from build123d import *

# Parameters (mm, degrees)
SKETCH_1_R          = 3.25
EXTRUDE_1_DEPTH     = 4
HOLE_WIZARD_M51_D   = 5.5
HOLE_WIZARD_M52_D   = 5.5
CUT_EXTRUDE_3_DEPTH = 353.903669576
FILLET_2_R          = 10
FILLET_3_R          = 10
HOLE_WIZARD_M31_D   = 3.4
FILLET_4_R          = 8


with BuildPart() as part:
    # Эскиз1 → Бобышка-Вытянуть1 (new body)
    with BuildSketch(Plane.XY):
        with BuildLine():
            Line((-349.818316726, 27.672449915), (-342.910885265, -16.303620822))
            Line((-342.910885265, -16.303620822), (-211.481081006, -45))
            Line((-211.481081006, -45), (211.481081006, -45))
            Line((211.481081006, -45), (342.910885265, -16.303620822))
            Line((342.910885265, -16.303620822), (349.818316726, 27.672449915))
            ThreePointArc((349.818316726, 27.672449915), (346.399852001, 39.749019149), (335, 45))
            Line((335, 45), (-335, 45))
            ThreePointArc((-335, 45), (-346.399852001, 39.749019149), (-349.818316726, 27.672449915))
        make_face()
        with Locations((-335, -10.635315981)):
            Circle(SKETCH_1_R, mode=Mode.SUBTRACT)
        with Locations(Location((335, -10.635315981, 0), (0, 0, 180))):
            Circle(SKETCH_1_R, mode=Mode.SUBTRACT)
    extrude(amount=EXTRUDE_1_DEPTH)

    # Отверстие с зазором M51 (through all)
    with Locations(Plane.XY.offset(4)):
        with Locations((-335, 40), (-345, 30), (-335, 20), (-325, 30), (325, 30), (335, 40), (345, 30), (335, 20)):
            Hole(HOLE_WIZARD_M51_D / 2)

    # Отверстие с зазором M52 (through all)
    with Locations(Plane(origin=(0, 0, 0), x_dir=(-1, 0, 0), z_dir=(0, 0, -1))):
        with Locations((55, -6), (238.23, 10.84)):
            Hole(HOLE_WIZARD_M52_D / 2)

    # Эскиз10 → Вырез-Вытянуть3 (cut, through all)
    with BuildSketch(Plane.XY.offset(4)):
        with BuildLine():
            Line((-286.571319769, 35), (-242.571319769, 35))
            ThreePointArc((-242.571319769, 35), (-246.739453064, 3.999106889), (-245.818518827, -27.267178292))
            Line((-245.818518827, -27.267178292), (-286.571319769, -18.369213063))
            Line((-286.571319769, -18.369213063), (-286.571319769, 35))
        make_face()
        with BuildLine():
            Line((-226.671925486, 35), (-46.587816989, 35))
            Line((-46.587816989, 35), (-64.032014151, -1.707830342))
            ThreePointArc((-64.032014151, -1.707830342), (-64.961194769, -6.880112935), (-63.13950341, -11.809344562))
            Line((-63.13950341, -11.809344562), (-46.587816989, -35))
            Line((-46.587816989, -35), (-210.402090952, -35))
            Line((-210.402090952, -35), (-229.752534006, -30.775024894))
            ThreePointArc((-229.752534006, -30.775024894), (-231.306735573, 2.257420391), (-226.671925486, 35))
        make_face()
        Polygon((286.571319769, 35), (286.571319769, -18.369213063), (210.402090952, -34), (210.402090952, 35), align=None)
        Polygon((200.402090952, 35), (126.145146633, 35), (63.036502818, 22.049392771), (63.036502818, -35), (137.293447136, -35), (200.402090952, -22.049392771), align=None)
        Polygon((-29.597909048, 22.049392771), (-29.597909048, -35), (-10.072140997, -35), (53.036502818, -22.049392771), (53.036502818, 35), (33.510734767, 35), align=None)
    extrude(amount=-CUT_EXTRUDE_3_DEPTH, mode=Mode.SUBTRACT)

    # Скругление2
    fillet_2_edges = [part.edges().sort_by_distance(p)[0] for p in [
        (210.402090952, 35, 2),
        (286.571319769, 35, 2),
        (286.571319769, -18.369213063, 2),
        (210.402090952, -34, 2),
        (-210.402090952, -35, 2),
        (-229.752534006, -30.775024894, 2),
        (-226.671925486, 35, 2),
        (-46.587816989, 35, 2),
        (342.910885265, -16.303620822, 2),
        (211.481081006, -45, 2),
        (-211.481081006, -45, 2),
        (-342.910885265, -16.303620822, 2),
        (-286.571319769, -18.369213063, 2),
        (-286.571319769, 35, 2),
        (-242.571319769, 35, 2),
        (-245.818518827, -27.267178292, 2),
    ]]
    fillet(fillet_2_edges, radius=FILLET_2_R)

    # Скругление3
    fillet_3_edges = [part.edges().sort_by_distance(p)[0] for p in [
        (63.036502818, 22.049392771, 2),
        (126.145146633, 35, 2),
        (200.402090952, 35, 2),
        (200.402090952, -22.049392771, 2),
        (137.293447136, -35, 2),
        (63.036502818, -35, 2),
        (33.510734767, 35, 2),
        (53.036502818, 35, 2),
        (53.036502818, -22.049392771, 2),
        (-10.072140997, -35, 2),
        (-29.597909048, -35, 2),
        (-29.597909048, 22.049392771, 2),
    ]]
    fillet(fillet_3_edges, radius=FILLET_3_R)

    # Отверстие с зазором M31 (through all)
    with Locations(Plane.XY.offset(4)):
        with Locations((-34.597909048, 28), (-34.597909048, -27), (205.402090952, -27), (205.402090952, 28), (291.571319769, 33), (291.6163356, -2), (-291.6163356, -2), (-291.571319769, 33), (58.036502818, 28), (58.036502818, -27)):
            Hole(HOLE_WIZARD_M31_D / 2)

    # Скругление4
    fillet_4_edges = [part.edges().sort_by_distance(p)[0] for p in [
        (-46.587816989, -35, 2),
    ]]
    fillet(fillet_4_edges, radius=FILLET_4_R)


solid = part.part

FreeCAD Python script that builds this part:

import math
import FreeCAD as App
import Part
import Sketcher


def edges_at(feature, points):
    """Names of the edges that pass closest to the given points."""
    edges = feature.Shape.Edges
    near = lambda p: min(range(len(edges)), key=lambda i: edges[i].distToShape(Part.Vertex(*p))[0])
    return sorted({f"Edge{near(p) + 1}" for p in points})


def add_polygon(sketch, points):
    """Adds a closed chain of lines whose ends are joined by coincident constraints."""
    first, n = sketch.GeometryCount, len(points)
    for a, b in zip(points, points[1:] + points[:1]):
        sketch.addGeometry(Part.LineSegment(App.Vector(*a, 0), App.Vector(*b, 0)), False)
    for i in range(n):
        sketch.addConstraint(Sketcher.Constraint("Coincident", first + i, 2, first + (i + 1) % n, 1))

doc = App.newDocument("Part")
body = doc.addObject("PartDesign::Body", "Body")

# Sketch on XY plane
sketch1 = body.newObject("Sketcher::SketchObject", "Sketch")
sketch1.AttachmentSupport = (doc.getObject("XY_Plane"), [""])
sketch1.MapMode = "FlatFace"
sketch1.addGeometry([
    Part.LineSegment(App.Vector(-349.8, 27.7, 0), App.Vector(-342.9, -16.3, 0)),  # 0
    Part.LineSegment(App.Vector(-342.9, -16.3, 0), App.Vector(-211.5, -45, 0)),  # 1
    Part.LineSegment(App.Vector(-211.5, -45, 0), App.Vector(211.5, -45, 0)),  # 2
    Part.LineSegment(App.Vector(211.5, -45, 0), App.Vector(342.9, -16.3, 0)),  # 3
    Part.LineSegment(App.Vector(342.9, -16.3, 0), App.Vector(349.8, 27.7, 0)),  # 4
    Part.ArcOfCircle(Part.Circle(App.Vector(335, 30, 0), App.Vector(0, 0, 1), 15), math.radians(-9), math.radians(90)),  # 5
    Part.LineSegment(App.Vector(335, 45, 0), App.Vector(-335, 45, 0)),  # 6
    Part.ArcOfCircle(Part.Circle(App.Vector(-335, 30, 0), App.Vector(0, 0, 1), 15), math.radians(90), math.radians(189)),  # 7
    Part.Circle(App.Vector(-335, -10.6, 0), App.Vector(0, 0, 1), 3.2),  # 8
    Part.Circle(App.Vector(335, -10.6, 0), App.Vector(0, 0, 1), 3.2),  # 9
], False)
sketch1.addConstraint([
    Sketcher.Constraint("Coincident", 0, 2, 1, 1),
    Sketcher.Constraint("Coincident", 1, 2, 2, 1),
    Sketcher.Constraint("Coincident", 2, 2, 3, 1),
    Sketcher.Constraint("Coincident", 3, 2, 4, 1),
    Sketcher.Constraint("Tangent", 4, 2, 5, 1),
    Sketcher.Constraint("Tangent", 5, 2, 6, 1),
    Sketcher.Constraint("Tangent", 6, 2, 7, 1),
    Sketcher.Constraint("Tangent", 7, 2, 0, 1),
    Sketcher.Constraint("Horizontal", 2),
    Sketcher.Constraint("Horizontal", 6),
    Sketcher.Constraint("Equal", 5, 7),
    Sketcher.Constraint("Equal", 8, 9),
    Sketcher.Constraint("Symmetric", 8, 3, 9, 3, -2),
    Sketcher.Constraint("Symmetric", 0, 2, 3, 2, -2),
    Sketcher.Constraint("Horizontal", 4, 2, 7, 2),
    Sketcher.Constraint("Vertical", 7, 3, 8, 3),
    Sketcher.Constraint("Equal", 1, 3),
    Sketcher.Constraint("Radius", 5, 15.0),
    Sketcher.Constraint("Diameter", 8, 6.5),
    Sketcher.Constraint("DistanceX", 6, 2, 6, 1, 670.0),
    Sketcher.Constraint("DistanceY", -1, 1, 5, 3, 30.0),
    Sketcher.Constraint("DistanceY", 1, 2, -1, 1, 45.0),
    Sketcher.Constraint("Distance", 0, 44.515249),
    Sketcher.Constraint("DistanceX", 2, 1, 2, 2, 422.962162),
    Sketcher.Constraint("DistanceY", 0, 2, -1, 1, 16.303621),
    Sketcher.Constraint("DistanceY", 8, 3, -1, 1, 10.635316),
])
pad1 = body.newObject("PartDesign::Pad", "Pad")
pad1.Profile = sketch1
pad1.Length = 4

# Sketch on XY plane
sketch2 = body.newObject("Sketcher::SketchObject", "Sketch001")
sketch2.AttachmentSupport = (doc.getObject("XY_Plane"), [""])
sketch2.MapMode = "FlatFace"
sketch2.AttachmentOffset = App.Placement(App.Vector(0, 0, 4), App.Rotation())
sketch2.addGeometry([
    Part.Circle(App.Vector(-335, 40, 0), App.Vector(0, 0, 1), 2.8),  # 0
    Part.Circle(App.Vector(-345, 30, 0), App.Vector(0, 0, 1), 2.8),  # 1
    Part.Circle(App.Vector(-335, 20, 0), App.Vector(0, 0, 1), 2.8),  # 2
    Part.Circle(App.Vector(-325, 30, 0), App.Vector(0, 0, 1), 2.8),  # 3
    Part.Circle(App.Vector(325, 30, 0), App.Vector(0, 0, 1), 2.8),  # 4
    Part.Circle(App.Vector(335, 40, 0), App.Vector(0, 0, 1), 2.8),  # 5
    Part.Circle(App.Vector(345, 30, 0), App.Vector(0, 0, 1), 2.8),  # 6
    Part.Circle(App.Vector(335, 20, 0), App.Vector(0, 0, 1), 2.8),  # 7
], False)
sketch2.addConstraint([
    Sketcher.Constraint("Equal", 0, 1),
    Sketcher.Constraint("Equal", 1, 2),
    Sketcher.Constraint("Equal", 2, 3),
    Sketcher.Constraint("Equal", 3, 4),
    Sketcher.Constraint("Equal", 4, 5),
    Sketcher.Constraint("Equal", 5, 6),
    Sketcher.Constraint("Equal", 6, 7),
    Sketcher.Constraint("Symmetric", 3, 3, 4, 3, -2),
    Sketcher.Constraint("Symmetric", 0, 3, 5, 3, -2),
    Sketcher.Constraint("Symmetric", 1, 3, 6, 3, -2),
    Sketcher.Constraint("Symmetric", 2, 3, 7, 3, -2),
    Sketcher.Constraint("Horizontal", 1, 3, 3, 3),
    Sketcher.Constraint("Vertical", 0, 3, 2, 3),
    Sketcher.Constraint("Diameter", 0, 5.5),
    Sketcher.Constraint("DistanceX", 0, 3, -1, 1, 335.0),
    Sketcher.Constraint("DistanceY", -1, 1, 0, 3, 40.0),
    Sketcher.Constraint("DistanceX", 1, 3, -1, 1, 345.0),
    Sketcher.Constraint("DistanceY", -1, 1, 1, 3, 30.0),
    Sketcher.Constraint("DistanceY", -1, 1, 2, 3, 20.0),
    Sketcher.Constraint("DistanceX", 3, 3, -1, 1, 325.0),
])
doc.recompute()
hole = body.newObject("PartDesign::Hole", "Hole")
hole.Profile = sketch2
hole.ThreadType = "None"
hole.Diameter = 5.5
hole.DepthType = "ThroughAll"

# Sketch on XY plane
sketch3 = body.newObject("Sketcher::SketchObject", "Sketch002")
sketch3.AttachmentSupport = (doc.getObject("XY_Plane"), [""])
sketch3.MapMode = "FlatFace"
sketch3.addGeometry([
    Part.Circle(App.Vector(-55, -6, 0), App.Vector(0, 0, 1), 2.8),
    Part.Circle(App.Vector(-238.2, 10.8, 0), App.Vector(0, 0, 1), 2.8),
], False)
sketch3.addConstraint([
    Sketcher.Constraint("Equal", 0, 1),
    Sketcher.Constraint("Diameter", 0, 5.5),
    Sketcher.Constraint("DistanceX", 0, 3, -1, 1, 55.0),
    Sketcher.Constraint("DistanceY", 0, 3, -1, 1, 6.0),
    Sketcher.Constraint("DistanceX", 1, 3, -1, 1, 238.23),
    Sketcher.Constraint("DistanceY", -1, 1, 1, 3, 10.84),
])
doc.recompute()
hole2 = body.newObject("PartDesign::Hole", "Hole001")
hole2.Profile = sketch3
hole2.ThreadType = "None"
hole2.Diameter = 5.5
hole2.DepthType = "ThroughAll"
hole2.Reversed = True

# Sketch on XY plane
sketch4 = body.newObject("Sketcher::SketchObject", "Sketch003")
sketch4.AttachmentSupport = (doc.getObject("XY_Plane"), [""])
sketch4.MapMode = "FlatFace"
sketch4.AttachmentOffset = App.Placement(App.Vector(0, 0, 4), App.Rotation())
sketch4.addGeometry(Part.LineSegment(App.Vector(-243, 35, 0), App.Vector(-287, 35, 0)), False)  # 0
sketch4.addGeometry(Part.LineSegment(App.Vector(-287, 35, 0), App.Vector(-287, -18, 0)), False)  # 1
sketch4.addGeometry(Part.LineSegment(App.Vector(-287, -18, 0), App.Vector(-246, -27, 0)), False)  # 2
sketch4.addGeometry(Part.ArcOfCircle(Part.Circle(App.Vector(-55, -6, 0), App.Vector(0, 0, 1), 192), math.radians(167.67), math.radians(186.36)), False)  # 3
sketch4.addGeometry(Part.LineSegment(App.Vector(-47, 35, 0), App.Vector(-227, 35, 0)), False)  # 4
sketch4.addGeometry(Part.ArcOfCircle(Part.Circle(App.Vector(-55, -6, 0), App.Vector(0, 0, 1), 177), math.radians(167), math.radians(188)), False)  # 5
sketch4.addGeometry(Part.LineSegment(App.Vector(-230, -31, 0), App.Vector(-210, -35, 0)), False)  # 6
sketch4.addGeometry(Part.LineSegment(App.Vector(-210, -35, 0), App.Vector(-47, -35, 0)), False)  # 7
sketch4.addGeometry(Part.LineSegment(App.Vector(-47, -35, 0), App.Vector(-63, -12, 0)), False)  # 8
sketch4.addGeometry(Part.ArcOfCircle(Part.Circle(App.Vector(-55, -6, 0), App.Vector(0, 0, 1), 10), math.radians(155), math.radians(216)), False)  # 9
sketch4.addGeometry(Part.LineSegment(App.Vector(-64, -2, 0), App.Vector(-47, 35, 0)), False)  # 10
add_polygon(sketch4, [(287, -18), (287, 35), (210, 35), (210, -34)])  # lines 11-14
add_polygon(sketch4, [(200, 35), (126, 35), (63, 22), (63, -35), (137, -35), (200, -22)])  # lines 15-20
add_polygon(sketch4, [(-30, 22), (-30, -35), (-10, -35), (53, -22), (53, 35), (34, 35)])  # lines 21-26
sketch4.addConstraint([
    Sketcher.Constraint("Coincident", 0, 2, 1, 1),
    Sketcher.Constraint("Coincident", 1, 2, 2, 1),
    Sketcher.Constraint("Coincident", 2, 2, 3, 2),
    Sketcher.Constraint("Coincident", 3, 1, 0, 1),
    Sketcher.Constraint("Coincident", 4, 2, 5, 1),
    Sketcher.Constraint("Coincident", 5, 2, 6, 1),
    Sketcher.Constraint("Coincident", 6, 2, 7, 1),
    Sketcher.Constraint("Coincident", 7, 2, 8, 1),
    Sketcher.Constraint("Tangent", 8, 2, 9, 2),
    Sketcher.Constraint("Tangent", 9, 1, 10, 1),
    Sketcher.Constraint("Coincident", 10, 2, 4, 1),
    Sketcher.Constraint("Horizontal", 0),
    Sketcher.Constraint("Vertical", 1),
    Sketcher.Constraint("Horizontal", 4),
    Sketcher.Constraint("Horizontal", 7),
    Sketcher.Constraint("Vertical", 11),
    Sketcher.Constraint("Horizontal", 12),
    Sketcher.Constraint("Vertical", 13),
    Sketcher.Constraint("Horizontal", 15),
    Sketcher.Constraint("Vertical", 17),
    Sketcher.Constraint("Horizontal", 18),
    Sketcher.Constraint("Vertical", 20),
    Sketcher.Constraint("Vertical", 21),
    Sketcher.Constraint("Horizontal", 22),
    Sketcher.Constraint("Vertical", 24),
    Sketcher.Constraint("Horizontal", 25),
    Sketcher.Constraint("Coincident", 5, 3, 3, 3),
    Sketcher.Constraint("Coincident", 9, 3, 3, 3),
    Sketcher.Constraint("Symmetric", 6, 2, 12, 2, -1, 1),
    Sketcher.Constraint("Symmetric", 0, 2, 11, 2, -2),
    Sketcher.Constraint("Symmetric", 7, 2, 10, 2, -1),
    Sketcher.Constraint("Parallel", 2, 6),
    Sketcher.Constraint("Parallel", 14, 16),
    Sketcher.Constraint("Parallel", 16, 19),
    Sketcher.Constraint("Parallel", 19, 23),
    Sketcher.Constraint("Parallel", 23, 26),
    Sketcher.Constraint("Horizontal", 1, 2, 14, 2),
    Sketcher.Constraint("Horizontal", 12, 2, 15, 2),
    Sketcher.Constraint("Horizontal", 7, 2, 17, 2),
    Sketcher.Constraint("Horizontal", 18, 2, 21, 2),
    Sketcher.Constraint("Horizontal", 19, 2, 23, 2),
    Sketcher.Constraint("Horizontal", 20, 2, 24, 2),
    Sketcher.Constraint("Horizontal", 16, 2, 26, 2),
    Sketcher.Constraint("Equal", 15, 18),
    Sketcher.Constraint("Radius", 3, 192.0),
    Sketcher.Constraint("Radius", 9, 10.0),
    Sketcher.Constraint("Radius", 5, 176.5),
    Sketcher.Constraint("DistanceX", 0, 2, 0, 1, 44.0),
    Sketcher.Constraint("DistanceY", 13, 2, 13, 1, 69.0),
    Sketcher.Constraint("DistanceX", 3, 3, -1, 1, 55.0),
    Sketcher.Constraint("DistanceY", 3, 3, -1, 1, 6.0),
    Sketcher.Constraint("DistanceY", -1, 1, 0, 2, 35.0),
    Sketcher.Constraint("DistanceX", 19, 2, 13, 2, 10.0),
    Sketcher.Constraint("DistanceX", 23, 2, 17, 2, 10.0),
    Sketcher.Constraint("DistanceX", 4, 2, 4, 1, 180.084108),
    Sketcher.Constraint("DistanceX", 12, 2, 12, 1, 76.169229),
    Sketcher.Constraint("DistanceX", 22, 1, 22, 2, 19.525768),
    Sketcher.Constraint("DistanceX", 1, 2, 2, 2, 40.752801),
    Sketcher.Constraint("DistanceX", 15, 2, 18, 2, 11.148301),
    Sketcher.Constraint("DistanceX", 15, 2, 15, 1, 74.256944),
    Sketcher.Constraint("DistanceY", 1, 2, 1, 1, 53.369213),
])
pocket1 = body.newObject("PartDesign::Pocket", "Pocket")
pocket1.Profile = sketch4
pocket1.Type = "ThroughAll"
doc.recompute()

fillet = body.newObject("PartDesign::Fillet", "Fillet")
fillet.Base = (pocket1, edges_at(pocket1, [
    (210.402, 35, 2),
    (286.571, 35, 2),
    (286.571, -18.369, 2),
    (210.402, -34, 2),
    (-210.402, -35, 2),
    (-229.753, -30.775, 2),
    (-226.672, 35, 2),
    (-46.588, 35, 2),
    (342.911, -16.304, 2),
    (211.481, -45, 2),
    (-211.481, -45, 2),
    (-342.911, -16.304, 2),
    (-286.571, -18.369, 2),
    (-286.571, 35, 2),
    (-242.571, 35, 2),
    (-245.819, -27.267, 2),
]))
fillet.Radius = 10
doc.recompute()

fillet2 = body.newObject("PartDesign::Fillet", "Fillet001")
fillet2.Base = (fillet, edges_at(fillet, [
    (63.037, 22.049, 2),
    (126.145, 35, 2),
    (200.402, 35, 2),
    (200.402, -22.049, 2),
    (137.293, -35, 2),
    (63.037, -35, 2),
    (33.511, 35, 2),
    (53.037, 35, 2),
    (53.037, -22.049, 2),
    (-10.072, -35, 2),
    (-29.598, -35, 2),
    (-29.598, 22.049, 2),
]))
fillet2.Radius = 10

# Sketch on XY plane
sketch5 = body.newObject("Sketcher::SketchObject", "Sketch004")
sketch5.AttachmentSupport = (doc.getObject("XY_Plane"), [""])
sketch5.MapMode = "FlatFace"
sketch5.AttachmentOffset = App.Placement(App.Vector(0, 0, 4), App.Rotation())
sketch5.addGeometry([
    Part.Circle(App.Vector(-34.6, 28, 0), App.Vector(0, 0, 1), 1.7),  # 0
    Part.Circle(App.Vector(-34.6, -27, 0), App.Vector(0, 0, 1), 1.7),  # 1
    Part.Circle(App.Vector(205.4, -27, 0), App.Vector(0, 0, 1), 1.7),  # 2
    Part.Circle(App.Vector(205.4, 28, 0), App.Vector(0, 0, 1), 1.7),  # 3
    Part.Circle(App.Vector(291.6, 33, 0), App.Vector(0, 0, 1), 1.7),  # 4
    Part.Circle(App.Vector(291.6, -2, 0), App.Vector(0, 0, 1), 1.7),  # 5
    Part.Circle(App.Vector(-291.6, -2, 0), App.Vector(0, 0, 1), 1.7),  # 6
    Part.Circle(App.Vector(-291.6, 33, 0), App.Vector(0, 0, 1), 1.7),  # 7
    Part.Circle(App.Vector(58, 28, 0), App.Vector(0, 0, 1), 1.7),  # 8
    Part.Circle(App.Vector(58, -27, 0), App.Vector(0, 0, 1), 1.7),  # 9
], False)
sketch5.addConstraint([
    Sketcher.Constraint("Equal", 0, 1),
    Sketcher.Constraint("Equal", 1, 2),
    Sketcher.Constraint("Equal", 2, 3),
    Sketcher.Constraint("Equal", 3, 4),
    Sketcher.Constraint("Equal", 4, 5),
    Sketcher.Constraint("Equal", 5, 6),
    Sketcher.Constraint("Equal", 6, 7),
    Sketcher.Constraint("Equal", 7, 8),
    Sketcher.Constraint("Equal", 8, 9),
    Sketcher.Constraint("Symmetric", 5, 3, 6, 3, -2),
    Sketcher.Constraint("Symmetric", 4, 3, 7, 3, -2),
    Sketcher.Constraint("Horizontal", 1, 3, 2, 3),
    Sketcher.Constraint("Horizontal", 0, 3, 3, 3),
    Sketcher.Constraint("Horizontal", 3, 3, 8, 3),
    Sketcher.Constraint("Horizontal", 2, 3, 9, 3),
    Sketcher.Constraint("Vertical", 0, 3, 1, 3),
    Sketcher.Constraint("Vertical", 2, 3, 3, 3),
    Sketcher.Constraint("Vertical", 8, 3, 9, 3),
    Sketcher.Constraint("Diameter", 0, 3.4),
    Sketcher.Constraint("DistanceY", -1, 1, 0, 3, 28.0),
    Sketcher.Constraint("DistanceY", 1, 3, -1, 1, 27.0),
    Sketcher.Constraint("DistanceY", -1, 1, 4, 3, 33.0),
    Sketcher.Constraint("DistanceY", 5, 3, -1, 1, 2.0),
    Sketcher.Constraint("DistanceX", 1, 3, 2, 3, 240.0),
    Sketcher.Constraint("DistanceX", 0, 3, -1, 1, 34.597909),
    Sketcher.Constraint("DistanceX", -1, 1, 4, 3, 291.57132),
    Sketcher.Constraint("DistanceX", 6, 3, 5, 3, 583.232671),
    Sketcher.Constraint("DistanceX", 0, 3, 8, 3, 92.634412),
])
doc.recompute()
hole3 = body.newObject("PartDesign::Hole", "Hole002")
hole3.Profile = sketch5
hole3.ThreadType = "None"
hole3.Diameter = 3.4
hole3.DepthType = "ThroughAll"
doc.recompute()

fillet3 = body.newObject("PartDesign::Fillet", "Fillet002")
fillet3.Base = (hole3, edges_at(hole3, [(-46.588, -35, 2)]))
fillet3.Radius = 8

doc.recompute()
